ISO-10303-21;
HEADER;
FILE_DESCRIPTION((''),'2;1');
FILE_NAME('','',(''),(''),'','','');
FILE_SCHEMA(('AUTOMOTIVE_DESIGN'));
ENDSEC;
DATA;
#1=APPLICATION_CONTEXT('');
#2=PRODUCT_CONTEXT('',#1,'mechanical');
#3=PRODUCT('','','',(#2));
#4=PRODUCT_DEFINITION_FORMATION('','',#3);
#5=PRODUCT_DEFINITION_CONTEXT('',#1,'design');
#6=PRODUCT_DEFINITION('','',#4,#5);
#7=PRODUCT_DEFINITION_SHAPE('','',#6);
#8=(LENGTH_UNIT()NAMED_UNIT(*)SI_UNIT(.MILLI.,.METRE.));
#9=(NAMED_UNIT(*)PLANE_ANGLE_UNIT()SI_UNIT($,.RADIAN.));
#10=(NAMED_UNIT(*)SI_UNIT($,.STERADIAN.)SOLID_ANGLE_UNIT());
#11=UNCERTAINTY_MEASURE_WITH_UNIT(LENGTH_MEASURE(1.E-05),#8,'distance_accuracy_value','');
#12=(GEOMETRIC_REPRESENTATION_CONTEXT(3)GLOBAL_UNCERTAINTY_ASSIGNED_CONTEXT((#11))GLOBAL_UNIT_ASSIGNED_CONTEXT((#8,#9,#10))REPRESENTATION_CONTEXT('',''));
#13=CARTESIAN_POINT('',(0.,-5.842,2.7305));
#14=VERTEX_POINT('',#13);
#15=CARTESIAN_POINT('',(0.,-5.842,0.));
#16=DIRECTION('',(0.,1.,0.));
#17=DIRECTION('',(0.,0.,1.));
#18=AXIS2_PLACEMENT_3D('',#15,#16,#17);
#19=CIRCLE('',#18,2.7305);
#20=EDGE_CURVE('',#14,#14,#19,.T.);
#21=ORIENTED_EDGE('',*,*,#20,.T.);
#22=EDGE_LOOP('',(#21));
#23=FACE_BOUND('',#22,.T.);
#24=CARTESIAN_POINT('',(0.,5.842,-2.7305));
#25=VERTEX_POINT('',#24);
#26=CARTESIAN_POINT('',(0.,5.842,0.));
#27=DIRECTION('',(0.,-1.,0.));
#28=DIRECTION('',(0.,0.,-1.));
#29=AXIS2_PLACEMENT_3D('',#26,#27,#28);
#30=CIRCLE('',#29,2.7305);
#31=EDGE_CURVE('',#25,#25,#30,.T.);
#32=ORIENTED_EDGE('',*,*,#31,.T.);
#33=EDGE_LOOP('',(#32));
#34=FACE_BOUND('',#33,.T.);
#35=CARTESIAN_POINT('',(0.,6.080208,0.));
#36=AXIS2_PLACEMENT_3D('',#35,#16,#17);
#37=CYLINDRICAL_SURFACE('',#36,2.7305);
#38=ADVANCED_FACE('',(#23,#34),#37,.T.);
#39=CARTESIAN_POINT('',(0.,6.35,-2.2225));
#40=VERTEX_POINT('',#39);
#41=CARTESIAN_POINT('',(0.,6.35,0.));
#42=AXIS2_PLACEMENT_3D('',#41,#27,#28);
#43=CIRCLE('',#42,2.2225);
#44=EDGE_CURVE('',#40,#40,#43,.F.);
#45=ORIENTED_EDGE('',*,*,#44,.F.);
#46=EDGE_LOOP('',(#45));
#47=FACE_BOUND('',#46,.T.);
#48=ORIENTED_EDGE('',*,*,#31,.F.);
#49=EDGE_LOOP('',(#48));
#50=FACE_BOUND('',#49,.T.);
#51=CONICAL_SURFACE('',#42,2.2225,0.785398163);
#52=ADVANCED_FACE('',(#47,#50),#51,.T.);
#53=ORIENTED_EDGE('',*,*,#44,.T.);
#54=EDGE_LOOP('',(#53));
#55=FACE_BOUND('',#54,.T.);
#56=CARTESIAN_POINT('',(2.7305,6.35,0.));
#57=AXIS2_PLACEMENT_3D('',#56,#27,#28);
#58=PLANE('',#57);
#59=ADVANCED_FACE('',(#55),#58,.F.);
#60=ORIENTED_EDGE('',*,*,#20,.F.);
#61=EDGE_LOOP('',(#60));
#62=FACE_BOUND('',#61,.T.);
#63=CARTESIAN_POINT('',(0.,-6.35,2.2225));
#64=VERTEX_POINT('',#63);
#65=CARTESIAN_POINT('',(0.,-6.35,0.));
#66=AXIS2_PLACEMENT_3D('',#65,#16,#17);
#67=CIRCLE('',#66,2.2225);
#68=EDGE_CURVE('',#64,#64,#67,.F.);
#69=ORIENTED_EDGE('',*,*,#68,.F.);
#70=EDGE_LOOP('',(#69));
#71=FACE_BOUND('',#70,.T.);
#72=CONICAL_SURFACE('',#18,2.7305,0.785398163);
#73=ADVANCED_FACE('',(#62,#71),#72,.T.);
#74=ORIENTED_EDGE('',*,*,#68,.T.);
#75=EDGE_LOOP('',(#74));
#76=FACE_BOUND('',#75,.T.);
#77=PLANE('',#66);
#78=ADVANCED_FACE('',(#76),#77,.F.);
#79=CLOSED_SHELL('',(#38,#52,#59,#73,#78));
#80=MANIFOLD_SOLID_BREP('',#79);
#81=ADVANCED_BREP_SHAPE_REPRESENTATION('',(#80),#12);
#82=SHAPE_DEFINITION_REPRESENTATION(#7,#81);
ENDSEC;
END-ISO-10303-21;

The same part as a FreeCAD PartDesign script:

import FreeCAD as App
import Part
import Sketcher
Q = App.Units.Quantity


def edges_at(feature, points):
    """Names of the edges that pass closest to the given points."""
    edges = feature.Shape.Edges
    near = lambda p: min(range(len(edges)), key=lambda i: edges[i].distToShape(Part.Vertex(*p))[0])
    return sorted({f"Edge{near(p) + 1}" for p in points})

doc = App.newDocument("Part")
body = doc.addObject("PartDesign::Body", "Body")

# Sketch on XY plane
sketch1 = body.newObject("Sketcher::SketchObject", "Sketch")
sketch1.AttachmentSupport = (doc.getObject("XY_Plane"), [""])
sketch1.MapMode = "FlatFace"
sketch1.addGeometry([
    Part.LineSegment(App.Vector(0, 6.3, 0), App.Vector(0, -6.3, 0)),
    Part.LineSegment(App.Vector(0, -6.3, 0), App.Vector(2.7, -6.3, 0)),
    Part.LineSegment(App.Vector(2.7, -6.3, 0), App.Vector(2.7, 6.3, 0)),
    Part.LineSegment(App.Vector(2.7, 6.3, 0), App.Vector(0, 6.3, 0)),
], False)
sketch1.addConstraint([
    Sketcher.Constraint("Coincident", 0, 2, 1, 1),
    Sketcher.Constraint("Coincident", 1, 2, 2, 1),
    Sketcher.Constraint("Coincident", 2, 2, 3, 1),
    Sketcher.Constraint("Coincident", 3, 2, 0, 1),
    Sketcher.Constraint("Vertical", 0),
    Sketcher.Constraint("Horizontal", 1),
    Sketcher.Constraint("Vertical", 2),
    Sketcher.Constraint("Horizontal", 3),
    Sketcher.Constraint("Symmetric", 0, 2, 3, 2, -1, 1),
    Sketcher.Constraint("DistanceY", 0, 2, 0, 1, Q("0.5 in")),
    Sketcher.Constraint("DistanceX", 1, 1, 1, 2, Q("0.1075 in")),
])
revolution = body.newObject("PartDesign::Revolution", "Revolution")
revolution.Profile = sketch1
revolution.ReferenceAxis = (sketch1, ["V_Axis"])
revolution.Angle = 360
doc.recompute()

chamfer = body.newObject("PartDesign::Chamfer", "Chamfer")
chamfer.Base = (revolution, edges_at(revolution, [(-2.731, 6.35, 0), (-2.731, -6.35, 0)]))
chamfer.Size = Q("0.02 in")

doc.recompute()
